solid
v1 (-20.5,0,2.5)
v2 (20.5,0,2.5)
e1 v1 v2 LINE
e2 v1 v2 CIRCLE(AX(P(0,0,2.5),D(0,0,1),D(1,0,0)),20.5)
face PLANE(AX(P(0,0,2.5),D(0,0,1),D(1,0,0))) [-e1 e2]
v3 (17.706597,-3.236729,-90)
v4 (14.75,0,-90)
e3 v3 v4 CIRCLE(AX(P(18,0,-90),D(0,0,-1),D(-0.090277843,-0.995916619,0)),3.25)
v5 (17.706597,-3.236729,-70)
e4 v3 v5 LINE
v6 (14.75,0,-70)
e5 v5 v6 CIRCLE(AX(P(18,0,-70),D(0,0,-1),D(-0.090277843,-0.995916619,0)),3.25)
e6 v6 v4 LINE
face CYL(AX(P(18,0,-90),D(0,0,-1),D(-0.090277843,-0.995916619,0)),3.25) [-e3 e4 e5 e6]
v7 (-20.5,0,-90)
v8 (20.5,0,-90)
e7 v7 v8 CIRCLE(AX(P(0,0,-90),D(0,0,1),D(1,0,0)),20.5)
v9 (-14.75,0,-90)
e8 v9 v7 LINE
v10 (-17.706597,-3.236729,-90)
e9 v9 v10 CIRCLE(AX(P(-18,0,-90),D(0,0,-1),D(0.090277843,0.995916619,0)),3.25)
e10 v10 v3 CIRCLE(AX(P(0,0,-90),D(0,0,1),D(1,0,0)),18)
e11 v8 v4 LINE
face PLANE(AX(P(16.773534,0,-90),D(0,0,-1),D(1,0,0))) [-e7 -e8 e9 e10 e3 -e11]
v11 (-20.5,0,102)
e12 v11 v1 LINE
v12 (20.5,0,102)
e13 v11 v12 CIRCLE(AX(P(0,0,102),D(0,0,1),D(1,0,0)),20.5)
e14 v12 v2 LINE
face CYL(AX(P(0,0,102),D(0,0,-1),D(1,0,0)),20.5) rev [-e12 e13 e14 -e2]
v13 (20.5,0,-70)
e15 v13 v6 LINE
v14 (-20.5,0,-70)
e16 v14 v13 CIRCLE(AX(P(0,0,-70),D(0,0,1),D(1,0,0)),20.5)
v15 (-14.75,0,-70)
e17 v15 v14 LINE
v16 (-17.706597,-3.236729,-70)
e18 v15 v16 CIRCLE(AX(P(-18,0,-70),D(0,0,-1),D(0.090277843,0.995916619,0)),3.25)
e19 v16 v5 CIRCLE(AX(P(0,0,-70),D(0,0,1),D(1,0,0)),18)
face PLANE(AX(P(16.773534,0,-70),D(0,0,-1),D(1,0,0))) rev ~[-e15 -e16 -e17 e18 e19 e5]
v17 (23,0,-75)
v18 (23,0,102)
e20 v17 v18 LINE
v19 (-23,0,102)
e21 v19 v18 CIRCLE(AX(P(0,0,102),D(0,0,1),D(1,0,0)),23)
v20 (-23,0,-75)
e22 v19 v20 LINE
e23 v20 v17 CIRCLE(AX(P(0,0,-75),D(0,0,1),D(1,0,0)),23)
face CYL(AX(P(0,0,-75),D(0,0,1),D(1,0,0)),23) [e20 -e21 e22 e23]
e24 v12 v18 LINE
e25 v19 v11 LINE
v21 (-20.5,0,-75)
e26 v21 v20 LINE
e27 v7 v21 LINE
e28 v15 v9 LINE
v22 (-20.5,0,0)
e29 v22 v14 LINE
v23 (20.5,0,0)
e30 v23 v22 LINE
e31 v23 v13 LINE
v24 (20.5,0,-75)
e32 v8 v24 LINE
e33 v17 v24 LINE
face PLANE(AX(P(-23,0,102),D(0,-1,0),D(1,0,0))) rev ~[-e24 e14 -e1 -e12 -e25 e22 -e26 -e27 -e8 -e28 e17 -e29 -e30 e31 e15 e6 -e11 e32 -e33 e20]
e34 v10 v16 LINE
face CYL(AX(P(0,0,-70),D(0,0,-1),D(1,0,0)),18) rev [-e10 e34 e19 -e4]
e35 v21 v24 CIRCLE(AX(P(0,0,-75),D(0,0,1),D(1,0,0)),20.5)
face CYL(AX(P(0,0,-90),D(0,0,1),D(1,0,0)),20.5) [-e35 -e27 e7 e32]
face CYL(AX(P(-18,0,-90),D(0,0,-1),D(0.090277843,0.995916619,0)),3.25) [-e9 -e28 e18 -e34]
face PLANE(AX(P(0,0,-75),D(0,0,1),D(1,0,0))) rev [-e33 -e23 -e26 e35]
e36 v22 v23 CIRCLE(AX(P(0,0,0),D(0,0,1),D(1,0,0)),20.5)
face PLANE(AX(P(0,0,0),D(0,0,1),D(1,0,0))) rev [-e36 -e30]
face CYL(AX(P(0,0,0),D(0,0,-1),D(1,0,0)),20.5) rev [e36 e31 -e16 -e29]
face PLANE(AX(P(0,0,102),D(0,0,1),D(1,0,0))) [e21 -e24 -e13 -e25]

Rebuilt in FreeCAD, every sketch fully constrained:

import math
import FreeCAD as App
import Part
import Sketcher

doc = App.newDocument("Part")
body = doc.addObject("PartDesign::Body", "Body")

sketch1 = doc.addObject("Sketcher::SketchObject", "Sketch")
body.addObject(sketch1)
sketch1.AttachmentSupport = (doc.XZ_Plane, [""])
sketch1.MapMode = "FlatFace"
sketch1.addGeometry([
    Part.LineSegment(App.Vector(20.5, 2.5, 0), App.Vector(0, 2.5, 0)),
    Part.LineSegment(App.Vector(0, 2.5, 0), App.Vector(0, 0, 0)),
    Part.LineSegment(App.Vector(0, 0, 0), App.Vector(20.5, 0, 0)),
    Part.LineSegment(App.Vector(20.5, 0, 0), App.Vector(20.5, -70, 0)),
    Part.LineSegment(App.Vector(20.5, -70, 0), App.Vector(18, -70, 0)),
    Part.LineSegment(App.Vector(18, -70, 0), App.Vector(18, -90, 0)),
    Part.LineSegment(App.Vector(18, -90, 0), App.Vector(20.5, -90, 0)),
    Part.LineSegment(App.Vector(20.5, -90, 0), App.Vector(20.5, -75, 0)),
    Part.LineSegment(App.Vector(20.5, -75, 0), App.Vector(23, -75, 0)),
    Part.LineSegment(App.Vector(23, -75, 0), App.Vector(23, 102, 0)),
    Part.LineSegment(App.Vector(23, 102, 0), App.Vector(20.5, 102, 0)),
    Part.LineSegment(App.Vector(20.5, 102, 0), App.Vector(20.5, 2.5, 0)),
], False)
sketch1.addConstraint([
    Sketcher.Constraint("Coincident", 0, 2, 1, 1),
    Sketcher.Constraint("Coincident", 1, 2, 2, 1),
    Sketcher.Constraint("Coincident", 2, 2, 3, 1),
    Sketcher.Constraint("Coincident", 3, 2, 4, 1),
    Sketcher.Constraint("Coincident", 4, 2, 5, 1),
    Sketcher.Constraint("Coincident", 5, 2, 6, 1),
    Sketcher.Constraint("Coincident", 6, 2, 7, 1),
    Sketcher.Constraint("Coincident", 7, 2, 8, 1),
    Sketcher.Constraint("Coincident", 8, 2, 9, 1),
    Sketcher.Constraint("Coincident", 9, 2, 10, 1),
    Sketcher.Constraint("Coincident", 10, 2, 11, 1),
    Sketcher.Constraint("Coincident", 11, 2, 0, 1),
    Sketcher.Constraint("Horizontal", 0),
    Sketcher.Constraint("Vertical", 1),
    Sketcher.Constraint("Horizontal", 2),
    Sketcher.Constraint("Vertical", 3),
    Sketcher.Constraint("Horizontal", 4),
    Sketcher.Constraint("Vertical", 5),
    Sketcher.Constraint("Horizontal", 6),
    Sketcher.Constraint("Vertical", 7),
    Sketcher.Constraint("Horizontal", 8),
    Sketcher.Constraint("Vertical", 9),
    Sketcher.Constraint("Horizontal", 10),
    Sketcher.Constraint("Vertical", 11),
    Sketcher.Constraint("Coincident", 1, 2, -1, 1),
    Sketcher.Constraint("Vertical", 3, 2, 6, 2),
    Sketcher.Constraint("Vertical", 7, 2, 10, 2),
    Sketcher.Constraint("Equal", 6, 8),
    Sketcher.Constraint("Equal", 10, 1),
    Sketcher.Constraint("DistanceY", 3, 2, 3, 1, 70.0),
    Sketcher.Constraint("DistanceY", 5, 2, 5, 1, 20.0),
    Sketcher.Constraint("DistanceY", 7, 1, 7, 2, 15.0),
    Sketcher.Constraint("DistanceY", 9, 1, 9, 2, 177.0),
    Sketcher.Constraint("DistanceX", 0, 2, 0, 1, 20.5),
    Sketcher.Constraint("DistanceX", 4, 2, 4, 1, 2.5),
])
revolution = doc.addObject("PartDesign::Revolution", "Revolution")
body.addObject(revolution)
revolution.Profile = sketch1
revolution.ReferenceAxis = (sketch1, ["V_Axis"])
revolution.Angle = 360

sketch2 = doc.addObject("Sketcher::SketchObject", "Sketch001")
body.addObject(sketch2)
sketch2.AttachmentSupport = (doc.XY_Plane, [""])
sketch2.MapMode = "FlatFace"
sketch2.AttachmentOffset = App.Placement(App.Vector(0, 0, 2.5), App.Rotation())
sketch2.addGeometry([
    Part.LineSegment(App.Vector(0, 12, 0), App.Vector(16, 12, 0)),
    Part.ArcOfCircle(Part.Circle(App.Vector(0, 0, 0), App.Vector(0, 0, 1), 21), math.radians(38), math.radians(90)),
    Part.LineSegment(App.Vector(0, 20, 0), App.Vector(0, 12, 0)),
], False)
sketch2.addConstraint([
    Sketcher.Constraint("Coincident", 0, 2, 1, 1),
    Sketcher.Constraint("Coincident", 1, 2, 2, 1),
    Sketcher.Constraint("Coincident", 2, 2, 0, 1),
    Sketcher.Constraint("Horizontal", 0),
    Sketcher.Constraint("Vertical", 2),
    Sketcher.Constraint("Coincident", 1, 3, -1, 1),
    Sketcher.Constraint("PointOnObject", 1, 2, -2),
    Sketcher.Constraint("DistanceY", 2, 2, 2, 1, 8.0),
    Sketcher.Constraint("DistanceY", -1, 1, 0, 2, 12.5),
])
pocket1 = doc.addObject("PartDesign::Pocket", "Pocket")
body.addObject(pocket1)
pocket1.Profile = sketch2
pocket1.Length = 2.5

sketch3 = doc.addObject("Sketcher::SketchObject", "Sketch002")
body.addObject(sketch3)
sketch3.AttachmentSupport = (doc.XY_Plane, [""])
sketch3.MapMode = "FlatFace"
sketch3.AttachmentOffset = App.Placement(App.Vector(0, 0, -90), App.Rotation())
sketch3.addGeometry([
    Part.ArcOfCircle(Part.Circle(App.Vector(-0.000014, 0, 0), App.Vector(0, 0, 1), 17.999986), math.radians(169.640817), math.radians(190.359183)),
    Part.ArcOfCircle(Part.Circle(App.Vector(-18, 0, 0), App.Vector(0, 0, 1), 3.25), math.radians(-84.820409), math.radians(84.820409)),
    Part.ArcOfCircle(Part.Circle(App.Vector(0.000014, 0, 0), App.Vector(0, 0, 1), 17.999986), math.radians(-10.359183), math.radians(10.359183)),
    Part.ArcOfCircle(Part.Circle(App.Vector(18, 0, 0), App.Vector(0, 0, 1), 3.25), math.radians(95.179591), math.radians(264.820409)),
], False)
sketch3.addConstraint([
    Sketcher.Constraint("Coincident", 0, 1, 1, 2),
    Sketcher.Constraint("Coincident", 1, 1, 0, 2),
    Sketcher.Constraint("Coincident", 2, 1, 3, 2),
    Sketcher.Constraint("Coincident", 3, 1, 2, 2),
    Sketcher.Constraint("Equal", 0, 2),
    Sketcher.Constraint("Equal", 1, 3),
    Sketcher.Constraint("Symmetric", 0, 3, 2, 3, -1, 1),
    Sketcher.Constraint("Symmetric", 1, 3, 3, 3, -1, 1),
    Sketcher.Constraint("Symmetric", 1, 1, 2, 1, -2),
    Sketcher.Constraint("Radius", 1, 3.25),
    Sketcher.Constraint("DistanceX", 1, 3, -1, 1, 18.0),
    Sketcher.Constraint("Radius", 0, 17.999986),
    Sketcher.Constraint("DistanceY", -1, 1, 0, 1, 3.236729),
])
pad1 = doc.addObject("PartDesign::Pad", "Pad")
body.addObject(pad1)
pad1.Profile = sketch3
pad1.Length = 20

sketch4 = doc.addObject("Sketcher::SketchObject", "Sketch003")
body.addObject(sketch4)
sketch4.AttachmentSupport = (doc.XY_Plane, [""])
sketch4.MapMode = "FlatFace"
sketch4.AttachmentOffset = App.Placement(App.Vector(0, 0, 102), App.Rotation())
sketch4.addGeometry([
    Part.LineSegment(App.Vector(-23, 0, 0), App.Vector(23, 0, 0)),
    Part.ArcOfCircle(Part.Circle(App.Vector(0, 0, 0), App.Vector(0, 0, 1), 23), math.radians(0), math.radians(180)),
], False)
sketch4.addConstraint([
    Sketcher.Constraint("Coincident", 0, 1, 1, 2),
    Sketcher.Constraint("Coincident", 1, 1, 0, 2),
    Sketcher.Constraint("Horizontal", 0),
    Sketcher.Constraint("Coincident", 1, 3, -1, 1),
    Sketcher.Constraint("PointOnObject", 0, 1, -1),
    Sketcher.Constraint("Radius", 1, 23.0),
])
pocket2 = doc.addObject("PartDesign::Pocket", "Pocket001")
body.addObject(pocket2)
pocket2.Profile = sketch4
pocket2.Type = "ThroughAll"

doc.recompute()
